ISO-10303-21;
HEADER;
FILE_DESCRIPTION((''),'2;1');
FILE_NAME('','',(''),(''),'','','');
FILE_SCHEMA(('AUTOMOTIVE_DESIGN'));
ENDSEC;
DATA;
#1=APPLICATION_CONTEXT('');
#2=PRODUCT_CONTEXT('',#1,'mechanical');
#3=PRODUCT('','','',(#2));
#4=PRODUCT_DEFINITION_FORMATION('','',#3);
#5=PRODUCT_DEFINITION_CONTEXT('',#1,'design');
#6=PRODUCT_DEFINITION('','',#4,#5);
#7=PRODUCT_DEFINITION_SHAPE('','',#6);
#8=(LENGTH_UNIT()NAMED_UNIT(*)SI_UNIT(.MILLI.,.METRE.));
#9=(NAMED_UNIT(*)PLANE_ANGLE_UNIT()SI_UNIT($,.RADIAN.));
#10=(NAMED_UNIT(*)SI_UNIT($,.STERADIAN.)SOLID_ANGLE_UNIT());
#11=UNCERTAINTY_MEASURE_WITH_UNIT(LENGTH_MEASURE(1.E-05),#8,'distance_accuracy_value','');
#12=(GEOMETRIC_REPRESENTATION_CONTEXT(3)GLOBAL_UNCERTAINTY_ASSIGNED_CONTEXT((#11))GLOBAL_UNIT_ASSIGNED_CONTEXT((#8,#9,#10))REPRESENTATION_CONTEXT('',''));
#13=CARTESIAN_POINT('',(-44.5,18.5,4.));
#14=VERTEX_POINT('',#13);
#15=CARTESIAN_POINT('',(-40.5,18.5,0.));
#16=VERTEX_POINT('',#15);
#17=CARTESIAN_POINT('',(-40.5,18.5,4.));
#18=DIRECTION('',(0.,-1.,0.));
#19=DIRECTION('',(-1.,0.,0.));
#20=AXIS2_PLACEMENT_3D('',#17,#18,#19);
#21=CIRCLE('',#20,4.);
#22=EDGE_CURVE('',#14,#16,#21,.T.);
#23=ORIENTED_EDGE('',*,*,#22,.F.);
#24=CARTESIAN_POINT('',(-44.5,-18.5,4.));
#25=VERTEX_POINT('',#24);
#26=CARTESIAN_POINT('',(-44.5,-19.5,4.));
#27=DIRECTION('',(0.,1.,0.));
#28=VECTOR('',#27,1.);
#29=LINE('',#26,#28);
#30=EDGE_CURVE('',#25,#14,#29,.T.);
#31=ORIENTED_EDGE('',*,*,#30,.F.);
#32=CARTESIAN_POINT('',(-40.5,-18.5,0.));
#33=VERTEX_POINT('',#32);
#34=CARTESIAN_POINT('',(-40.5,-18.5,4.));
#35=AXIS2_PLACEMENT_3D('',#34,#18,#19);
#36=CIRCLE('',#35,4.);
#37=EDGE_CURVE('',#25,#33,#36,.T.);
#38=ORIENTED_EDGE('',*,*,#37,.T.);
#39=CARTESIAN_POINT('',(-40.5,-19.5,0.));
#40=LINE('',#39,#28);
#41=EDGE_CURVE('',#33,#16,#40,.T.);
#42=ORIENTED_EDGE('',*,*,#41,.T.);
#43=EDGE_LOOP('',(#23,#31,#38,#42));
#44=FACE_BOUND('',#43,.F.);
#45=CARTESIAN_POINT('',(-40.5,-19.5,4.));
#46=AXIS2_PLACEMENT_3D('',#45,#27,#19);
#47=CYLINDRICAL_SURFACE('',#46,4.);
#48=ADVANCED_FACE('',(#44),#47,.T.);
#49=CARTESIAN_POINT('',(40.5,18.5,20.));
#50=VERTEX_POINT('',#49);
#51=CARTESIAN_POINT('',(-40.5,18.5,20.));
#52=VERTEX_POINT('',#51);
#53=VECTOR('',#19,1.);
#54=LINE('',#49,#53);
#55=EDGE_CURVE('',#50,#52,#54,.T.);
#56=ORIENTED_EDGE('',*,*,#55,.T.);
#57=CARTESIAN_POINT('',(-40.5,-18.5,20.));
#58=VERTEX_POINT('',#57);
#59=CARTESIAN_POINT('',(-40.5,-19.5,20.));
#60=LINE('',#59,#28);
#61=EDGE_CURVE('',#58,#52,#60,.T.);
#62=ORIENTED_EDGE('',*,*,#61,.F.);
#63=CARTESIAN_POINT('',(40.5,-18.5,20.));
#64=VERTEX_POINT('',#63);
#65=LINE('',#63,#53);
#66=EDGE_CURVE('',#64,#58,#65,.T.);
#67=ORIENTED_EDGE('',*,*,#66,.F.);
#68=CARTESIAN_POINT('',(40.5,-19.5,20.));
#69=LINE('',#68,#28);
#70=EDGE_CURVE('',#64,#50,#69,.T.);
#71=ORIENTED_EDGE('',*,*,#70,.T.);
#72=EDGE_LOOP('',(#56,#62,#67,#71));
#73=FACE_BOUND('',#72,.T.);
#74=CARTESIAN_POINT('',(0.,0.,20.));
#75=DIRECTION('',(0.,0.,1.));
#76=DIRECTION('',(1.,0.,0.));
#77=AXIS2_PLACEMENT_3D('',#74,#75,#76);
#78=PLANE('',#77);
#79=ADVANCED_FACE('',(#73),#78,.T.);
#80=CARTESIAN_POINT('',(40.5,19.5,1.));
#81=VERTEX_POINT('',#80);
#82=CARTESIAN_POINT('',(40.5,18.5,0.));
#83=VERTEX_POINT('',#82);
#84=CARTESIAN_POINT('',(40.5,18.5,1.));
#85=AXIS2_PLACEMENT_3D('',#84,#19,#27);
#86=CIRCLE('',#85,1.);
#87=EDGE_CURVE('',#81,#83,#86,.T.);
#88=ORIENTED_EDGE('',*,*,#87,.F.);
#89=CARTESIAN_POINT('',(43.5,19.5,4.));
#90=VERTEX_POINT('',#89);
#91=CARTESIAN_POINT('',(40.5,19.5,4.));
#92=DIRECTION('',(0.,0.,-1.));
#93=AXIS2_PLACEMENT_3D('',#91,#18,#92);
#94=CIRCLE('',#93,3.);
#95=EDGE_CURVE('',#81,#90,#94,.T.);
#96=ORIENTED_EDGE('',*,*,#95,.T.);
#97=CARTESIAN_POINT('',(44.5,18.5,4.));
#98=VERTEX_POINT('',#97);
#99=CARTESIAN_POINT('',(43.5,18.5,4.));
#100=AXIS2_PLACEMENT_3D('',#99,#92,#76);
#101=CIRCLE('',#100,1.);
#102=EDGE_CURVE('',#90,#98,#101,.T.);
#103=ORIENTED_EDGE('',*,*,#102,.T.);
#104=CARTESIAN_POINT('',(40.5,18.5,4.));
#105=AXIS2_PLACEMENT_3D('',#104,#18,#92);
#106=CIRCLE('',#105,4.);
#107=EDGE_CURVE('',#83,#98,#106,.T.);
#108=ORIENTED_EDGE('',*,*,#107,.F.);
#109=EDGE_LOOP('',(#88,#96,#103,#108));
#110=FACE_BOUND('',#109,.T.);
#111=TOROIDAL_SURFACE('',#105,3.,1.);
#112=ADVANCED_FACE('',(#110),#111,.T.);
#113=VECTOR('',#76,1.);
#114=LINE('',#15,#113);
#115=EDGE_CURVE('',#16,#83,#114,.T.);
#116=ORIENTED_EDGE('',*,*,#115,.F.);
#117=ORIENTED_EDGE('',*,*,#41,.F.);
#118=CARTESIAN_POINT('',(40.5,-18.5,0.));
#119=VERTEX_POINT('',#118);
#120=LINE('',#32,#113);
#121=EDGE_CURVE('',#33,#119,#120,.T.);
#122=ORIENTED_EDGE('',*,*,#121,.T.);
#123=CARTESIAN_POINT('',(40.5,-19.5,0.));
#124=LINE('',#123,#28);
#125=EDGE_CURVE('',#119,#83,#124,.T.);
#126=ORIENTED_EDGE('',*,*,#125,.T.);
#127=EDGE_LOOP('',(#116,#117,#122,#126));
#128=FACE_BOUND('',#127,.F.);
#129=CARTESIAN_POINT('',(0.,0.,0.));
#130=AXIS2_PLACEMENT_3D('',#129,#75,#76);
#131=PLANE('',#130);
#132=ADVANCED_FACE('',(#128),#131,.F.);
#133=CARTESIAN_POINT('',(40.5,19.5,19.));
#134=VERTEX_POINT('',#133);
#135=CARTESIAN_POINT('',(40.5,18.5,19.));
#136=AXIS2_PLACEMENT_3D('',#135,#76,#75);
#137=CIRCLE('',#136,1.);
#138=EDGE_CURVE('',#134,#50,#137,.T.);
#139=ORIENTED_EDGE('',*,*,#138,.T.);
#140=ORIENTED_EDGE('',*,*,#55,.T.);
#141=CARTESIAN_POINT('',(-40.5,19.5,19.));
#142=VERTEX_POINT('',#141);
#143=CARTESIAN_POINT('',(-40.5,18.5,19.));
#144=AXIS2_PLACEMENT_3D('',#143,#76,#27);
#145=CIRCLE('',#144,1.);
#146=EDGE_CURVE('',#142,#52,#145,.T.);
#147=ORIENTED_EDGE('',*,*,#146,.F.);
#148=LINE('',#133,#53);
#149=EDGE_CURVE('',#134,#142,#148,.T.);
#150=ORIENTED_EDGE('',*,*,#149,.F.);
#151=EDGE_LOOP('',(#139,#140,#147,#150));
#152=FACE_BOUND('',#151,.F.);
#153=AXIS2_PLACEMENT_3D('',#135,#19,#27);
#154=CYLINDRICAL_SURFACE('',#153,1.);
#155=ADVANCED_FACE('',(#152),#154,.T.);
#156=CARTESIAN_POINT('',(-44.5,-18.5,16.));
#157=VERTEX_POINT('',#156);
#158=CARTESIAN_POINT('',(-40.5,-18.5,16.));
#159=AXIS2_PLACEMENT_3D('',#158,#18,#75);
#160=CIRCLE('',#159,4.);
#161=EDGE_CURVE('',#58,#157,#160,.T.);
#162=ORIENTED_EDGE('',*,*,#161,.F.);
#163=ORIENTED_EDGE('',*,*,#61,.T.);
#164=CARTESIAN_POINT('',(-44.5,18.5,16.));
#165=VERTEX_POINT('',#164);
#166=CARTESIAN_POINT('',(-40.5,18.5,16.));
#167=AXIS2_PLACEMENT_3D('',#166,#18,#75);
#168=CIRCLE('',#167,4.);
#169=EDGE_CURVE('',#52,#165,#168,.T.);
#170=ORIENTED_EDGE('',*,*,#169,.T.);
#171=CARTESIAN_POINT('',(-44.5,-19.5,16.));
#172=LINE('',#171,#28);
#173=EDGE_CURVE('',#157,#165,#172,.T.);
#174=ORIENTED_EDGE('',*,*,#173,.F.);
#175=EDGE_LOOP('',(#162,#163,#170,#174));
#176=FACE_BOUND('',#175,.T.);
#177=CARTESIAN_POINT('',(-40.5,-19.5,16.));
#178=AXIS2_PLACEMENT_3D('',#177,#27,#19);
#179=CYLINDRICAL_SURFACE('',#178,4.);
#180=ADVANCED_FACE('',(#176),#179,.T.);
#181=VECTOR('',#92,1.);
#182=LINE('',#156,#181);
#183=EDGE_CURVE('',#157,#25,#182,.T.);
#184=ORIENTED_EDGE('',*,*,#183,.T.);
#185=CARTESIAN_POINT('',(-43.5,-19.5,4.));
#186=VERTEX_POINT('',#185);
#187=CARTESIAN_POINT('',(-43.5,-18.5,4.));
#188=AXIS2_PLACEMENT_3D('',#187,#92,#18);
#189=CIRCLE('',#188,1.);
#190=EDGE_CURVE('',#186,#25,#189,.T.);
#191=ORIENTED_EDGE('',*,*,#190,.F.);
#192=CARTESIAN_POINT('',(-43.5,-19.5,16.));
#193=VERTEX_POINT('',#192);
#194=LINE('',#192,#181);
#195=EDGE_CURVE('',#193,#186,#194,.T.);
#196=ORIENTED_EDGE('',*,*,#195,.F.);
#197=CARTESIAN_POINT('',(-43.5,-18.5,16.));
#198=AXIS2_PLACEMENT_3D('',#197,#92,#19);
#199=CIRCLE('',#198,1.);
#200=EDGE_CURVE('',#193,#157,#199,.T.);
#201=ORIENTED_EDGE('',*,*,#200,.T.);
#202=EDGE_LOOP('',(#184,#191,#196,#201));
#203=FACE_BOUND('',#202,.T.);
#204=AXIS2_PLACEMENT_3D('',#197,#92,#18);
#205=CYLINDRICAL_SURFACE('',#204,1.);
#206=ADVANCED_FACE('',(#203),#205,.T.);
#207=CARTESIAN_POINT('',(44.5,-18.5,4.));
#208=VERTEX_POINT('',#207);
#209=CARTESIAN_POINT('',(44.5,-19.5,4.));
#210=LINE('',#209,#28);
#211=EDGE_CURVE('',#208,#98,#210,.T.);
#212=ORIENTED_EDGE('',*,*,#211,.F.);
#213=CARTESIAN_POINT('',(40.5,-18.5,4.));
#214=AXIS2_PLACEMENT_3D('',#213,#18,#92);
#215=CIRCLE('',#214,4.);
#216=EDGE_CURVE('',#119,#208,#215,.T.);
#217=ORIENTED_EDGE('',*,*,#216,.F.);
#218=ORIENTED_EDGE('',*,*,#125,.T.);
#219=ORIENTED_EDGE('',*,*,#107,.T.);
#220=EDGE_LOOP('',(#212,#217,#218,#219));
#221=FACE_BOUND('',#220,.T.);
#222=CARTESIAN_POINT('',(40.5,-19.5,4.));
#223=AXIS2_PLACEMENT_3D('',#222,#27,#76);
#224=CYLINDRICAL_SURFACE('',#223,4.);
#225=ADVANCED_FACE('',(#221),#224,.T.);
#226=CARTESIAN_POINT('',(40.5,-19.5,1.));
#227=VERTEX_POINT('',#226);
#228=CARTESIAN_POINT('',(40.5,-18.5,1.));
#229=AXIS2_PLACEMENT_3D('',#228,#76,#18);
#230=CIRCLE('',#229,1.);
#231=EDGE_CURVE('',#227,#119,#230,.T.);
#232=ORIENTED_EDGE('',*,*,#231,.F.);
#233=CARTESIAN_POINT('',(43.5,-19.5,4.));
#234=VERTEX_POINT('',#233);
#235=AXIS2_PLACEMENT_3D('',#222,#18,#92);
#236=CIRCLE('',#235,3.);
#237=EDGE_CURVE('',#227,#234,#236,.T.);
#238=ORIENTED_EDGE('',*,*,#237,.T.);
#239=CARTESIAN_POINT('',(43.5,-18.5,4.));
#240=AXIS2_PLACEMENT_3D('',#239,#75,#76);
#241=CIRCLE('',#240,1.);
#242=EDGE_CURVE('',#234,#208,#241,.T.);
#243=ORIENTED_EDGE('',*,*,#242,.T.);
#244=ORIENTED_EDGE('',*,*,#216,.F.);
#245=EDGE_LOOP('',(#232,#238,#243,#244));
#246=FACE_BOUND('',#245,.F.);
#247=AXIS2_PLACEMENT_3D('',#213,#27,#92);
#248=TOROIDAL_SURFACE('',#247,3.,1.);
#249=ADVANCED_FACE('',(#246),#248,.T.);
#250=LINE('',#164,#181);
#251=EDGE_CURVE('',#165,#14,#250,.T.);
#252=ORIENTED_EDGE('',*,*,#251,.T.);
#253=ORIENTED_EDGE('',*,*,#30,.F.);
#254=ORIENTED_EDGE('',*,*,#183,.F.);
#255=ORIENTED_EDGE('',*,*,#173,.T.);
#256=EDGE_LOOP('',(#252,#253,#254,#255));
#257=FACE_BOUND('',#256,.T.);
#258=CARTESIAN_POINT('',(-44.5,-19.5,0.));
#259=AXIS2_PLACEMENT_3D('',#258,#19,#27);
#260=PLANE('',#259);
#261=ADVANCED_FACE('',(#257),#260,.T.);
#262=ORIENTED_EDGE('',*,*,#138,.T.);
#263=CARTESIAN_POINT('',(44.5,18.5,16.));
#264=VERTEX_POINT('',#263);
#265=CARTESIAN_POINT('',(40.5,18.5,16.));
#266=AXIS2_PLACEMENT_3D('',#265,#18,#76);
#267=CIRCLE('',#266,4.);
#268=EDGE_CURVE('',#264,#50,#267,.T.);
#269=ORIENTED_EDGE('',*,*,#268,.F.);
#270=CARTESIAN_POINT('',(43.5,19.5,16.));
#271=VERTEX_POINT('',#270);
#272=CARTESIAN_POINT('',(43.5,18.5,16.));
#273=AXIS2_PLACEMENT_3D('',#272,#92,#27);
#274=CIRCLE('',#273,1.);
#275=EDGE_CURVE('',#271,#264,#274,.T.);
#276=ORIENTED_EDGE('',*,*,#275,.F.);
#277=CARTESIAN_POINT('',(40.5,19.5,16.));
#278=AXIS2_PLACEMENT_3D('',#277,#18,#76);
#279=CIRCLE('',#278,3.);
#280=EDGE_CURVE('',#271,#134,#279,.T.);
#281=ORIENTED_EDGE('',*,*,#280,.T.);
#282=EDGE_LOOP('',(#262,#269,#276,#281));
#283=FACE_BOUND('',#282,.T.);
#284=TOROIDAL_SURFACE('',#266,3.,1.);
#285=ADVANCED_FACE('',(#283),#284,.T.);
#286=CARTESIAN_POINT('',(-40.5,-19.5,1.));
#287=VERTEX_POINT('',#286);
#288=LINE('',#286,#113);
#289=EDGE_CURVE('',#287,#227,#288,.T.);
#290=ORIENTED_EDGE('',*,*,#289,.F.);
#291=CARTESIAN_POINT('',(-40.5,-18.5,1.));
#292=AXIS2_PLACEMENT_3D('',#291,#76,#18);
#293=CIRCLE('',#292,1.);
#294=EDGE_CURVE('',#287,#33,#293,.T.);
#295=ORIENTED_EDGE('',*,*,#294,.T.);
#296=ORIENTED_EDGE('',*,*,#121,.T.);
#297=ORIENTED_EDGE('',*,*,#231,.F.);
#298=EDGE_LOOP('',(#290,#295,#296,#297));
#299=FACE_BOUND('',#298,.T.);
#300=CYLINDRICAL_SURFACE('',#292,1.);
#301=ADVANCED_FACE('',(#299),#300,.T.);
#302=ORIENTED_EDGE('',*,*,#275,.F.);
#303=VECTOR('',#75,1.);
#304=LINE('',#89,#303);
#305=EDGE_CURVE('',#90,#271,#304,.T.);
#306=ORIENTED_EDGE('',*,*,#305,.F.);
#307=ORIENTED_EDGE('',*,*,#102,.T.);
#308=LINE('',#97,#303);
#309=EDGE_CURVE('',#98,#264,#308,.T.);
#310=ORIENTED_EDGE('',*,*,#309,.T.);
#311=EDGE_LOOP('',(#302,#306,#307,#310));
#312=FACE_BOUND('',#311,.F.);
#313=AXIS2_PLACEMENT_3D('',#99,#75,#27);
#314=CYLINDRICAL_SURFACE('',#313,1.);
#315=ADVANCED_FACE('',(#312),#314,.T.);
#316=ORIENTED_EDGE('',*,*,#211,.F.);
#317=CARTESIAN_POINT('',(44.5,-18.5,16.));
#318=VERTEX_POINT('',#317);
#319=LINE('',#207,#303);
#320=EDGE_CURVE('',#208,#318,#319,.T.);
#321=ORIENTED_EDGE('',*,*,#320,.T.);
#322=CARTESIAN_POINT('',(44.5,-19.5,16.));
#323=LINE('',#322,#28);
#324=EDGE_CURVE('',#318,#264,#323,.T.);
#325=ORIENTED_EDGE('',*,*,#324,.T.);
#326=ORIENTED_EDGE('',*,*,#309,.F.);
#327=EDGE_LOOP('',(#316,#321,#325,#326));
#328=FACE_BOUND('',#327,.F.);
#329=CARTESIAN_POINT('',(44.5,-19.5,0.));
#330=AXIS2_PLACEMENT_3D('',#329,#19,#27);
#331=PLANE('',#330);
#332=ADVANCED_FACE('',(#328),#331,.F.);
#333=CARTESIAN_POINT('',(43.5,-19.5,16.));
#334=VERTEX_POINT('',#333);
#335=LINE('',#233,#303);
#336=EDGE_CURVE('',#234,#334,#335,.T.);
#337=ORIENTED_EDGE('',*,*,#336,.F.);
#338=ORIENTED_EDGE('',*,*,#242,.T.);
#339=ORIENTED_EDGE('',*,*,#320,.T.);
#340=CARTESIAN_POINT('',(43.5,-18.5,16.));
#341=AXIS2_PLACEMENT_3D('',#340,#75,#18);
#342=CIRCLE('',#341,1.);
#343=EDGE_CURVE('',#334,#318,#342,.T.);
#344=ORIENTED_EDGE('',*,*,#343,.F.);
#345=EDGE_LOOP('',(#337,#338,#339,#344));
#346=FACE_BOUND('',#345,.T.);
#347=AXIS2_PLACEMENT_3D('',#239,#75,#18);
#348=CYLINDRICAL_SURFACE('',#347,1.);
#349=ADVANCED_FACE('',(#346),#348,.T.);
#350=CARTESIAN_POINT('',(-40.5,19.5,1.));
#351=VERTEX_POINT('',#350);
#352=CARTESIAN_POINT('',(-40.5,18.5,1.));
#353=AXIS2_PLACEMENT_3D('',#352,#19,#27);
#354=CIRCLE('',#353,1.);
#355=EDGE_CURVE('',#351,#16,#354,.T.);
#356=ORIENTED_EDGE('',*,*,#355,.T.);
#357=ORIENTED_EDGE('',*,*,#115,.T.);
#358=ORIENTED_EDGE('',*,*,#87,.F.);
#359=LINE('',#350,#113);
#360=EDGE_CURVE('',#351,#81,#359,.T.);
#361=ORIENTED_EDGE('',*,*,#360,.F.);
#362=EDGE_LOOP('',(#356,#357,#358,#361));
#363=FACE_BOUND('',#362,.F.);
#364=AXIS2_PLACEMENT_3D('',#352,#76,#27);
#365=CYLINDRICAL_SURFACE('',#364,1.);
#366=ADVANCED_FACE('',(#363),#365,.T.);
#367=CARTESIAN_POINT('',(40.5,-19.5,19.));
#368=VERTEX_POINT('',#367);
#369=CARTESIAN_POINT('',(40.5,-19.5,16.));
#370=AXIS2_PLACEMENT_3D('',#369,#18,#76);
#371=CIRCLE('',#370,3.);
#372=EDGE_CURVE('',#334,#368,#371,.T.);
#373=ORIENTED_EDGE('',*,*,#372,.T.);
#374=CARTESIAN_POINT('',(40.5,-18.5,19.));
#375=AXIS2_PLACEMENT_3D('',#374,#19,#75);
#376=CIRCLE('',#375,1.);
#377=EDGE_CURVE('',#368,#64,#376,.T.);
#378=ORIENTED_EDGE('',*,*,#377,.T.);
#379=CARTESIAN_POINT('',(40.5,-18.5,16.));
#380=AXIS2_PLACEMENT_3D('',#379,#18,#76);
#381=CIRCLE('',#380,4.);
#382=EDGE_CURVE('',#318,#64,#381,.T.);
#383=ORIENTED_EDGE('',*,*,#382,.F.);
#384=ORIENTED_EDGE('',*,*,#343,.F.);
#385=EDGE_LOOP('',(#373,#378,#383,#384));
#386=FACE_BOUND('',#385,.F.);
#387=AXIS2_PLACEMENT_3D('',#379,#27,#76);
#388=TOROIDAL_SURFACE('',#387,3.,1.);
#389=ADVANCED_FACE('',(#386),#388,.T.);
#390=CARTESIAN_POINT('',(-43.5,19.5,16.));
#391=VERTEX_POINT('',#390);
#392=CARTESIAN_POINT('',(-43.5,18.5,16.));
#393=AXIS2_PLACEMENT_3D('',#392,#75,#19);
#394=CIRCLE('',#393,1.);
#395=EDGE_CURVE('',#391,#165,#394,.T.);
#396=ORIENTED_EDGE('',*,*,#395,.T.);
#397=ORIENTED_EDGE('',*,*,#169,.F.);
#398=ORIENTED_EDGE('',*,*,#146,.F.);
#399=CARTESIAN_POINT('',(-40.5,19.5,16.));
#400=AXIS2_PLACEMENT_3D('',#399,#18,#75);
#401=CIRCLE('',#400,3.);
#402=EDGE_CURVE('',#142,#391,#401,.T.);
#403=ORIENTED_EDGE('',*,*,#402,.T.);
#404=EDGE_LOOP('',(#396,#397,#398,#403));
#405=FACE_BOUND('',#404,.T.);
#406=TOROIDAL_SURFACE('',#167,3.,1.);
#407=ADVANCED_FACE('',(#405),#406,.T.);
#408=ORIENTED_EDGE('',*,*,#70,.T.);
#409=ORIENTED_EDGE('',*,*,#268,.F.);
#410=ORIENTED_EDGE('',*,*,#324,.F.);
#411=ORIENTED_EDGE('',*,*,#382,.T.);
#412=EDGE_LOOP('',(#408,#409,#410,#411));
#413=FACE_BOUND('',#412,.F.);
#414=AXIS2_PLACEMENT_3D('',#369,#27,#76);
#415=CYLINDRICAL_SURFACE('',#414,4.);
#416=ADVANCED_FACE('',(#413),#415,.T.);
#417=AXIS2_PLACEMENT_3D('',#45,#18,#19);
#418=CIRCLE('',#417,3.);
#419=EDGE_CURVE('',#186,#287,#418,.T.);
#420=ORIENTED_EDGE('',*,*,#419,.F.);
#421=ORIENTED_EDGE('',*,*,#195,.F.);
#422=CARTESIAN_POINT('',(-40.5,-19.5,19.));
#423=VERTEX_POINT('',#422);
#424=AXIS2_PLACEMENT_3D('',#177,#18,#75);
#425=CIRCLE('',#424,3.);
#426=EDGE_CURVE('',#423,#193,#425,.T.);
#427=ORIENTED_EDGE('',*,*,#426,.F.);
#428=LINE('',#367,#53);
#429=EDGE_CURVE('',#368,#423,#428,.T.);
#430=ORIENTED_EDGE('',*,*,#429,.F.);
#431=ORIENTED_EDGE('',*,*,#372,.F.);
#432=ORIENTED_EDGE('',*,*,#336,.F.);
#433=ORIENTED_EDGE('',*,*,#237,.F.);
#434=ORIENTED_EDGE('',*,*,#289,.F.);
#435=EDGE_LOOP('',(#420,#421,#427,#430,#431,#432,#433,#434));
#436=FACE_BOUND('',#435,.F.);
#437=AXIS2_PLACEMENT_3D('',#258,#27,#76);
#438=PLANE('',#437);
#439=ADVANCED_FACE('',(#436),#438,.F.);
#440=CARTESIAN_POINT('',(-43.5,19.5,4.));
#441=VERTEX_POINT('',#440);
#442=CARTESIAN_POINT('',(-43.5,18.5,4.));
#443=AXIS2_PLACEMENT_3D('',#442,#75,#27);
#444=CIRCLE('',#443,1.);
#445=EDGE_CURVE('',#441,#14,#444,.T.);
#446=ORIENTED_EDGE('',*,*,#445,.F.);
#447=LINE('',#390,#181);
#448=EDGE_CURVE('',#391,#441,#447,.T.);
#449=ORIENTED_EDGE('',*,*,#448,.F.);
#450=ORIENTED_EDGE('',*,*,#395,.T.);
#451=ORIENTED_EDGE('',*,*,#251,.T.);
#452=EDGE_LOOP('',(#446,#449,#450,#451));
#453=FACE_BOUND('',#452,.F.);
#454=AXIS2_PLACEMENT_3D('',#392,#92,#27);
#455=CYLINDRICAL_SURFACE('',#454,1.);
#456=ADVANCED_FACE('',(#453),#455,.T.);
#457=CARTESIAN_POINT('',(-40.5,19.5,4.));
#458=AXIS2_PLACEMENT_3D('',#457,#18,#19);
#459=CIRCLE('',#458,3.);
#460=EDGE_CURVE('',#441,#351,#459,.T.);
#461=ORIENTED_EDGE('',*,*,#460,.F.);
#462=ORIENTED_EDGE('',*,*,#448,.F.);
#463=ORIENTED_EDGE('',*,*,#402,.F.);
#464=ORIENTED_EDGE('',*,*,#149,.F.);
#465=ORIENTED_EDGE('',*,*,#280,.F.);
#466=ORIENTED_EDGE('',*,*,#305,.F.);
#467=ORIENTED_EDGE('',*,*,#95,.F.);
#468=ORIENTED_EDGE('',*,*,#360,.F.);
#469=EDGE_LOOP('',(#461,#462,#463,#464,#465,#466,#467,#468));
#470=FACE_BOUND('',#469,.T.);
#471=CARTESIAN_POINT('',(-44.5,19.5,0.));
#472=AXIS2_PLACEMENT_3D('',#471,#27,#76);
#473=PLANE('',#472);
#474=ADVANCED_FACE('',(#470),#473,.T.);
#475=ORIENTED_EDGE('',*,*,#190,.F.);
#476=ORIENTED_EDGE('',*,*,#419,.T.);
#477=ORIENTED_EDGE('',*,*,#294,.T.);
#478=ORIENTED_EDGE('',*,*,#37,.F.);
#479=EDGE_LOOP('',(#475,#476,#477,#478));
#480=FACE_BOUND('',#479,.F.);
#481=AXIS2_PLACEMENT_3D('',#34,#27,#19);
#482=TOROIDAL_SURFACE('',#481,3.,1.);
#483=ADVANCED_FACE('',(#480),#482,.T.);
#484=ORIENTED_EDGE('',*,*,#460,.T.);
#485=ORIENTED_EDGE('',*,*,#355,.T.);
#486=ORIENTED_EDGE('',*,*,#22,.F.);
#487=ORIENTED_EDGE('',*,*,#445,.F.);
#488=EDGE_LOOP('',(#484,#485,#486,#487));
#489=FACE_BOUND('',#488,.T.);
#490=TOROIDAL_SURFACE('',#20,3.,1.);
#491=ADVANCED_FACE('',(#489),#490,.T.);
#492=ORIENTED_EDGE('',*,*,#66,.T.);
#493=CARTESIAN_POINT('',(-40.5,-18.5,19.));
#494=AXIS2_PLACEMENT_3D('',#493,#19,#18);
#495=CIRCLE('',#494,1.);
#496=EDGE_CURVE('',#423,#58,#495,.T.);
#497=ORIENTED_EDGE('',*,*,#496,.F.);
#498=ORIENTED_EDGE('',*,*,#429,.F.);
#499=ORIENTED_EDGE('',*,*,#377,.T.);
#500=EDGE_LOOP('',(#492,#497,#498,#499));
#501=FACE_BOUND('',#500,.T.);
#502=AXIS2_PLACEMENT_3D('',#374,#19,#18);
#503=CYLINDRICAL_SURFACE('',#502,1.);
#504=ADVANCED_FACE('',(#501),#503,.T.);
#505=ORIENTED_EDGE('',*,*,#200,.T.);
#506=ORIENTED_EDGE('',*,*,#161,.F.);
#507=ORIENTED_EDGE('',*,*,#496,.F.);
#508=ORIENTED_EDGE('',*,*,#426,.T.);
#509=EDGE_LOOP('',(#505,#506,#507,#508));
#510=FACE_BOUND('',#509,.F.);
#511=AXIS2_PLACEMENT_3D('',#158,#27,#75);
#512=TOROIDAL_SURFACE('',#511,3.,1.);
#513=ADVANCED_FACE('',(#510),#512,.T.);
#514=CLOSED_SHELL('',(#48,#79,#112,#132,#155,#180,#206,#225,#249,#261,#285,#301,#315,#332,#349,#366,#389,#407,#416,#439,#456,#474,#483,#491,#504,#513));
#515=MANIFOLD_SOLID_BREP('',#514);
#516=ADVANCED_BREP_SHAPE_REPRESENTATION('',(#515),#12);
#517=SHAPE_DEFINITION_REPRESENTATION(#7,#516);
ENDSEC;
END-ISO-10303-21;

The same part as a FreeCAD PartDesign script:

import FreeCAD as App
import Part
import Sketcher

V = App.Vector


def edges_at(feature, points):
    """Names of the edges that pass closest to the given points."""
    edges = feature.Shape.Edges
    near = lambda p: min(range(len(edges)), key=lambda i: edges[i].distToShape(Part.Vertex(*p))[0])
    return sorted({f"Edge{near(p) + 1}" for p in points})

doc = App.newDocument("Part")
body = doc.addObject("PartDesign::Body", "Body")

sketch1 = body.newObject("Sketcher::SketchObject", "Sketch")
sketch1.AttachmentSupport = (doc.getObject("XY_Plane"), [""])
sketch1.MapMode = "FlatFace"
sketch1.addGeometry([
    Part.LineSegment(V(-44, 20, 0), V(-44, -20, 0)),
    Part.LineSegment(V(-44, -20, 0), V(44, -20, 0)),
    Part.LineSegment(V(44, -20, 0), V(44, 20, 0)),
    Part.LineSegment(V(44, 20, 0), V(-44, 20, 0)),
], False)
sketch1.addConstraint([
    Sketcher.Constraint("Coincident", 0, 2, 1, 1),
    Sketcher.Constraint("Coincident", 1, 2, 2, 1),
    Sketcher.Constraint("Coincident", 2, 2, 3, 1),
    Sketcher.Constraint("Coincident", 3, 2, 0, 1),
    Sketcher.Constraint("Vertical", 0),
    Sketcher.Constraint("Horizontal", 1),
    Sketcher.Constraint("Vertical", 2),
    Sketcher.Constraint("Horizontal", 3),
    Sketcher.Constraint("Symmetric", 0, 2, 2, 2, -1, 1),
    Sketcher.Constraint("DistanceX", 1, 1, 1, 2, 89.0),
    Sketcher.Constraint("DistanceY", 0, 2, 0, 1, 39.0),
])
pad1 = body.newObject("PartDesign::Pad", "Pad")
pad1.Profile = sketch1
pad1.Length = 20
doc.recompute()

fillet = body.newObject("PartDesign::Fillet", "Fillet")
fillet.Base = (pad1, edges_at(pad1, [
    (44.5, 0, 20),
    (44.5, 0, 0),
    (-44.5, 0, 20),
    (-44.5, 0, 0),
]))
fillet.Radius = 4
doc.recompute()

fillet2 = body.newObject("PartDesign::Fillet", "Fillet001")
fillet2.Base = (fillet, edges_at(fillet, [(0, -19.5, 0), (0, 19.5, 0)]))
fillet2.Radius = 1

doc.recompute()
